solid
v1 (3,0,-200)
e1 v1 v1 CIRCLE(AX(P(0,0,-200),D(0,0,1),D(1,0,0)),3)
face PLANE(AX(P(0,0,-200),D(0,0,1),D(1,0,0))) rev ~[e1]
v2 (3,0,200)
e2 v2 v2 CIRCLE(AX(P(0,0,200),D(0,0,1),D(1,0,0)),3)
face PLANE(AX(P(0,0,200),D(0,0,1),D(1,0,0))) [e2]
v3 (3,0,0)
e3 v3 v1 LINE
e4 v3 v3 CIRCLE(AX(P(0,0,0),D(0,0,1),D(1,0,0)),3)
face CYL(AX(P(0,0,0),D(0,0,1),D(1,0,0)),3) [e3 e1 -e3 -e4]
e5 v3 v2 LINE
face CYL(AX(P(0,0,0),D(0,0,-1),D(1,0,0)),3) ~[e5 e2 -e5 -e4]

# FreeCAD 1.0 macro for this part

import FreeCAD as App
import Part
import Sketcher

V = App.Vector

doc = App.newDocument("Part")
body = doc.addObject("PartDesign::Body", "Body")

# Sketch on XY plane
sketch1 = body.newObject("Sketcher::SketchObject", "Sketch")
sketch1.AttachmentSupport = (doc.getObject("XY_Plane"), [""])
sketch1.MapMode = "FlatFace"
sketch1.addGeometry(Part.Circle(V(0, 0, 0), V(0, 0, 1), 3), False)
sketch1.addConstraint([
    Sketcher.Constraint("Coincident", 0, 3, -1, 1),
    Sketcher.Constraint("Diameter", 0, 6.0),
])
pad1 = body.newObject("PartDesign::Pad", "Pad")
pad1.Profile = sketch1
pad1.Length = 400
pad1.Midplane = True

doc.recompute()
